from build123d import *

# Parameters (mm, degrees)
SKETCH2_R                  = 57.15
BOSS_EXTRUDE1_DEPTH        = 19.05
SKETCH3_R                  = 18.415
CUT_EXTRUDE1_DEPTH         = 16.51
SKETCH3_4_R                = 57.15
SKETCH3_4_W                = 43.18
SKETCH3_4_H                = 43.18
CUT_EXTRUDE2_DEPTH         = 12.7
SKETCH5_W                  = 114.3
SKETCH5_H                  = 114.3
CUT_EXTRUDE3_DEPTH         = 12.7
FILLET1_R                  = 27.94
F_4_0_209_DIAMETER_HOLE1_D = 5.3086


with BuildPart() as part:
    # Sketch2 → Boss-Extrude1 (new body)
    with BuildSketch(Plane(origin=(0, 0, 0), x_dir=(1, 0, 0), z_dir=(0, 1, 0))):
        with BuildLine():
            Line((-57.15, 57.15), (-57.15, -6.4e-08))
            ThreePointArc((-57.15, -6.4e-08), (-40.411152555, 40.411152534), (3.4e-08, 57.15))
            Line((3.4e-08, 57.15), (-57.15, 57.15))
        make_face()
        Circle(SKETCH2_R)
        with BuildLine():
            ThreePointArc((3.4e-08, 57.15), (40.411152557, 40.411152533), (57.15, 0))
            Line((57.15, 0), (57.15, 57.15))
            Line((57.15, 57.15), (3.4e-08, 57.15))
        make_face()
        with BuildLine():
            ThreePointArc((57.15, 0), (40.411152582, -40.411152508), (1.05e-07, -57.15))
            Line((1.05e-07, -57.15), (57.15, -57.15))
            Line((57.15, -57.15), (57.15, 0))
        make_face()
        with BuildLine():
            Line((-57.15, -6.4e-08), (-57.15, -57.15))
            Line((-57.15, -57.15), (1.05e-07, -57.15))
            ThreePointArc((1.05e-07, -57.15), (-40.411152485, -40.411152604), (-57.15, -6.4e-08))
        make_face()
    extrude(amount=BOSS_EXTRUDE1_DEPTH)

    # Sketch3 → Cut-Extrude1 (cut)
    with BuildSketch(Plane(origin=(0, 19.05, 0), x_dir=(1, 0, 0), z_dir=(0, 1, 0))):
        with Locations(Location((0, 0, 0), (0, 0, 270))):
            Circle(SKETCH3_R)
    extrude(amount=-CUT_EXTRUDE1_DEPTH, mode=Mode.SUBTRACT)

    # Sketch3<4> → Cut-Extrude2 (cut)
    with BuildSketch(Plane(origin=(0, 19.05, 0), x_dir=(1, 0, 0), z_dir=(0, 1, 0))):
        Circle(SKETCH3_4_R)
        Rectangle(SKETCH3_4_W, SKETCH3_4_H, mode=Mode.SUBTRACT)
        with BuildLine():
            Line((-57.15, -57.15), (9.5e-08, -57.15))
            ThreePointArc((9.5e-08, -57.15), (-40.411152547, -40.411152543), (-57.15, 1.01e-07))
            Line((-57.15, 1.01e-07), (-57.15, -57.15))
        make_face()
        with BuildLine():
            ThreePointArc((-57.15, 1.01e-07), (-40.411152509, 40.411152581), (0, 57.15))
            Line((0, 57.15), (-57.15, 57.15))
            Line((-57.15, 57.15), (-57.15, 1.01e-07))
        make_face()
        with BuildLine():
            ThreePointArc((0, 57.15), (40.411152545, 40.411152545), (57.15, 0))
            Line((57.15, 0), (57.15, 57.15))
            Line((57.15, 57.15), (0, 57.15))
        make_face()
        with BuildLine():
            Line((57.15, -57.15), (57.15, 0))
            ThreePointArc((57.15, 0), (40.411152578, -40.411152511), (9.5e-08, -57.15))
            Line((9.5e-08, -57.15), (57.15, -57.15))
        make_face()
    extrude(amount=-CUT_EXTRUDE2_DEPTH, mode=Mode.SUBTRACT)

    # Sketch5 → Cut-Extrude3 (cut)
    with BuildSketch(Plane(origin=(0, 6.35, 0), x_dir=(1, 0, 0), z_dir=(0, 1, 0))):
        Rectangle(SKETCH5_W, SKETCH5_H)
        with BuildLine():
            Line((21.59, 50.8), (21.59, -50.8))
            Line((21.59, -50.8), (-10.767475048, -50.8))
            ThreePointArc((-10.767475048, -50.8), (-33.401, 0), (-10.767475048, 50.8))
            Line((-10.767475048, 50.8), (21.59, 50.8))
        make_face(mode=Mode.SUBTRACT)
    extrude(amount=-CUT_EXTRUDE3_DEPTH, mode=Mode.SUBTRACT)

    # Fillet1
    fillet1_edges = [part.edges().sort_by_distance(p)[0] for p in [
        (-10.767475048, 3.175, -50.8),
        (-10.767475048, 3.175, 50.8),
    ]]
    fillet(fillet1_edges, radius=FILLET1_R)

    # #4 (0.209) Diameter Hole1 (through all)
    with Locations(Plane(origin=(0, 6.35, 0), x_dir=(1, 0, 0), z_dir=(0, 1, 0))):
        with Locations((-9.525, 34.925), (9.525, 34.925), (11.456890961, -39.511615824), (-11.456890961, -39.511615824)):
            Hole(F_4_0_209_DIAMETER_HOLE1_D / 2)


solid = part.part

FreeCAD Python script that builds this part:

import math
import FreeCAD as App
import Part
import Sketcher

V = App.Vector
Q = App.Units.Quantity


def edges_at(feature, points):
    """Names of the edges that pass closest to the given points."""
    edges = feature.Shape.Edges
    near = lambda p: min(range(len(edges)), key=lambda i: edges[i].distToShape(Part.Vertex(*p))[0])
    return sorted({f"Edge{near(p) + 1}" for p in points})

doc = App.newDocument("Part")
params = doc.addObject("Spreadsheet::Sheet", "Params")
for row, (alias, value) in enumerate([
    ("sketch1_width", "4.5 in"),
    ("pad1_length", "0.75 in"),
    ("sketch2_diameter", "1.45 in"),
    ("pocket1_length", "0.65 in"),
    ("sketch3_width", "4.5 in"),
    ("sketch3_width2", "1.7 in"),
    ("pocket2_length", "0.5 in"),
    ("sketch4_height", "4 in"),
    ("sketch4_radius", "2.69 in"),
    ("sketch4_width", "4.5 in"),
    ("pocket3_length", "0.5 in"),
    ("fillet_radius", "1.1 in"),
    ("sketch5_diameter", "0.209 in"),
    ("hole_diameter", "0.209 in"),
], start=1):
    params.set(f"A{row}", alias)
    params.set(f"B{row}", "=" + value)
    params.setAlias(f"B{row}", alias)

body = doc.addObject("PartDesign::Body", "Body")

# Sketch on XZ plane
sketch1 = doc.addObject("Sketcher::SketchObject", "Sketch")
body.addObject(sketch1)
sketch1.AttachmentSupport = (doc.XZ_Plane, [""])
sketch1.MapMode = "FlatFace"
sketch1.addGeometry([
    Part.LineSegment(V(-57, -57, 0), V(-57, 57, 0)),
    Part.LineSegment(V(-57, 57, 0), V(57, 57, 0)),
    Part.LineSegment(V(57, 57, 0), V(57, -57, 0)),
    Part.LineSegment(V(57, -57, 0), V(-57, -57, 0)),
], False)
sketch1.addConstraint([
    Sketcher.Constraint("Coincident", 0, 2, 1, 1),
    Sketcher.Constraint("Coincident", 1, 2, 2, 1),
    Sketcher.Constraint("Coincident", 2, 2, 3, 1),
    Sketcher.Constraint("Coincident", 3, 2, 0, 1),
    Sketcher.Constraint("Vertical", 0),
    Sketcher.Constraint("Horizontal", 1),
    Sketcher.Constraint("Vertical", 2),
    Sketcher.Constraint("Horizontal", 3),
    Sketcher.Constraint("Symmetric", 0, 2, 2, 2, -1, 1),
    Sketcher.Constraint("Equal", 3, 0),
    Sketcher.Constraint("DistanceX", 1, 1, 1, 2, Q("4.5 in")),
])
sketch1.setExpression("Constraints[10]", "Params.sketch1_width")
pad1 = doc.addObject("PartDesign::Pad", "Pad")
body.addObject(pad1)
pad1.Profile = sketch1
pad1.setExpression("Length", "Params.pad1_length")
pad1.Reversed = True

# Sketch on XZ plane
sketch2 = doc.addObject("Sketcher::SketchObject", "Sketch001")
body.addObject(sketch2)
sketch2.AttachmentSupport = (doc.XZ_Plane, [""])
sketch2.MapMode = "FlatFace"
sketch2.AttachmentOffset = App.Placement(V(0, 0, -0.75 * 25.4), App.Rotation())
sketch2.addGeometry(Part.Circle(V(0, 0, 0), V(0, 0, 1), 18), False)
sketch2.addConstraint([
    Sketcher.Constraint("Coincident", 0, 3, -1, 1),
    Sketcher.Constraint("Diameter", 0, Q("1.45 in")),
])
sketch2.setExpression("Constraints[1]", "Params.sketch2_diameter")
pocket1 = doc.addObject("PartDesign::Pocket", "Pocket")
body.addObject(pocket1)
pocket1.Profile = sketch2
pocket1.setExpression("Length", "Params.pocket1_length")
pocket1.Reversed = True

# Sketch on XZ plane
sketch3 = doc.addObject("Sketcher::SketchObject", "Sketch002")
body.addObject(sketch3)
sketch3.AttachmentSupport = (doc.XZ_Plane, [""])
sketch3.MapMode = "FlatFace"
sketch3.AttachmentOffset = App.Placement(V(0, 0, -0.75 * 25.4), App.Rotation())
sketch3.addGeometry([
    Part.LineSegment(V(-57, 57, 0), V(57, 57, 0)),  # 0
    Part.LineSegment(V(57, 57, 0), V(57, -57, 0)),  # 1
    Part.LineSegment(V(57, -57, 0), V(-57, -57, 0)),  # 2
    Part.LineSegment(V(-57, -57, 0), V(-57, 57, 0)),  # 3
    Part.LineSegment(V(22, 22, 0), V(-22, 22, 0)),  # 4
    Part.LineSegment(V(-22, 22, 0), V(-22, -22, 0)),  # 5
    Part.LineSegment(V(-22, -22, 0), V(22, -22, 0)),  # 6
    Part.LineSegment(V(22, -22, 0), V(22, 22, 0)),  # 7
], False)
sketch3.addConstraint([
    Sketcher.Constraint("Coincident", 0, 2, 1, 1),
    Sketcher.Constraint("Coincident", 1, 2, 2, 1),
    Sketcher.Constraint("Coincident", 2, 2, 3, 1),
    Sketcher.Constraint("Coincident", 3, 2, 0, 1),
    Sketcher.Constraint("Coincident", 4, 2, 5, 1),
    Sketcher.Constraint("Coincident", 5, 2, 6, 1),
    Sketcher.Constraint("Coincident", 6, 2, 7, 1),
    Sketcher.Constraint("Coincident", 7, 2, 4, 1),
    Sketcher.Constraint("Horizontal", 0),
    Sketcher.Constraint("Vertical", 1),
    Sketcher.Constraint("Horizontal", 2),
    Sketcher.Constraint("Vertical", 3),
    Sketcher.Constraint("Horizontal", 4),
    Sketcher.Constraint("Vertical", 5),
    Sketcher.Constraint("Horizontal", 6),
    Sketcher.Constraint("Vertical", 7),
    Sketcher.Constraint("Symmetric", 0, 2, 2, 2, -1, 1),
    Sketcher.Constraint("Symmetric", 4, 2, 6, 2, -1, 1),
    Sketcher.Constraint("Equal", 2, 1),
    Sketcher.Constraint("Equal", 6, 5),
    Sketcher.Constraint("DistanceX", 0, 1, 0, 2, Q("4.5 in")),
    Sketcher.Constraint("DistanceX", 4, 2, 4, 1, Q("1.7 in")),
])
sketch3.setExpression("Constraints[20]", "Params.sketch3_width")
sketch3.setExpression("Constraints[21]", "Params.sketch3_width2")
pocket2 = doc.addObject("PartDesign::Pocket", "Pocket001")
body.addObject(pocket2)
pocket2.Profile = sketch3
pocket2.setExpression("Length", "Params.pocket2_length")
pocket2.Reversed = True

# Sketch on XZ plane
sketch4 = doc.addObject("Sketcher::SketchObject", "Sketch003")
body.addObject(sketch4)
sketch4.AttachmentSupport = (doc.XZ_Plane, [""])
sketch4.MapMode = "FlatFace"
sketch4.AttachmentOffset = App.Placement(V(0, 0, -0.25 * 25.4), App.Rotation())
sketch4.addGeometry([
    Part.LineSegment(V(-57, -57, 0), V(-57, 57, 0)),  # 0
    Part.LineSegment(V(-57, 57, 0), V(57, 57, 0)),  # 1
    Part.LineSegment(V(57, 57, 0), V(57, -57, 0)),  # 2
    Part.LineSegment(V(57, -57, 0), V(-57, -57, 0)),  # 3
    Part.LineSegment(V(-11, -51, 0), V(22, -51, 0)),  # 4
    Part.LineSegment(V(22, -51, 0), V(22, 51, 0)),  # 5
    Part.LineSegment(V(22, 51, 0), V(-11, 51, 0)),  # 6
    Part.ArcOfCircle(Part.Circle(V(35, 0, 0), V(0, 0, 1), 68), math.radians(132), math.radians(228)),  # 7
], False)
sketch4.addConstraint([
    Sketcher.Constraint("Coincident", 0, 2, 1, 1),
    Sketcher.Constraint("Coincident", 1, 2, 2, 1),
    Sketcher.Constraint("Coincident", 2, 2, 3, 1),
    Sketcher.Constraint("Coincident", 3, 2, 0, 1),
    Sketcher.Constraint("Coincident", 4, 2, 5, 1),
    Sketcher.Constraint("Coincident", 5, 2, 6, 1),
    Sketcher.Constraint("Coincident", 6, 2, 7, 1),
    Sketcher.Constraint("Coincident", 7, 2, 4, 1),
    Sketcher.Constraint("Vertical", 0),
    Sketcher.Constraint("Horizontal", 1),
    Sketcher.Constraint("Vertical", 2),
    Sketcher.Constraint("Horizontal", 3),
    Sketcher.Constraint("Horizontal", 4),
    Sketcher.Constraint("Vertical", 5),
    Sketcher.Constraint("Horizontal", 6),
    Sketcher.Constraint("Symmetric", 0, 2, 2, 2, -1, 1),
    Sketcher.Constraint("Symmetric", 6, 2, 7, 2, -1),
    Sketcher.Constraint("Equal", 3, 0),
    Sketcher.Constraint("DistanceY", 5, 1, 5, 2, Q("4 in")),
    Sketcher.Constraint("Radius", 7, Q("2.69 in")),
    Sketcher.Constraint("DistanceX", 1, 1, 1, 2, Q("4.5 in")),
    Sketcher.Constraint("DistanceX", 4, 2, 2, 2, Q("1.4 in")),
    Sketcher.Constraint("DistanceX", -1, 1, 7, 3, Q("1.375 in")),
])
sketch4.setExpression("Constraints[18]", "Params.sketch4_height")
sketch4.setExpression("Constraints[19]", "Params.sketch4_radius")
sketch4.setExpression("Constraints[20]", "Params.sketch4_width")
pocket3 = doc.addObject("PartDesign::Pocket", "Pocket002")
body.addObject(pocket3)
pocket3.Profile = sketch4
pocket3.setExpression("Length", "Params.pocket3_length")
pocket3.Reversed = True
doc.recompute()

fillet = doc.addObject("PartDesign::Fillet", "Fillet")
body.addObject(fillet)
fillet.Base = (pocket3, edges_at(pocket3, [(-10.767, 3.175, -50.8), (-10.767, 3.175, 50.8)]))
fillet.setExpression("Radius", "Params.fillet_radius")

# Sketch on XZ plane
sketch5 = doc.addObject("Sketcher::SketchObject", "Sketch004")
body.addObject(sketch5)
sketch5.AttachmentSupport = (doc.XZ_Plane, [""])
sketch5.MapMode = "FlatFace"
sketch5.AttachmentOffset = App.Placement(V(0, 0, -0.25 * 25.4), App.Rotation())
sketch5.addGeometry([
    Part.Circle(V(-9.5, -34.9, 0), V(0, 0, 1), 2.7),
    Part.Circle(V(9.5, -34.9, 0), V(0, 0, 1), 2.7),
    Part.Circle(V(11.5, 39.5, 0), V(0, 0, 1), 2.7),
    Part.Circle(V(-11.5, 39.5, 0), V(0, 0, 1), 2.7),
], False)
sketch5.addConstraint([
    Sketcher.Constraint("Equal", 0, 1),
    Sketcher.Constraint("Equal", 1, 2),
    Sketcher.Constraint("Equal", 2, 3),
    Sketcher.Constraint("Symmetric", 0, 3, 1, 3, -2),
    Sketcher.Constraint("Symmetric", 2, 3, 3, 3, -2),
    Sketcher.Constraint("Diameter", 0, Q("0.209 in")),
    Sketcher.Constraint("DistanceX", 0, 3, 1, 3, Q("0.75 in")),
    Sketcher.Constraint("DistanceY", 0, 3, -1, 1, Q("1.375 in")),
    Sketcher.Constraint("DistanceX", -1, 1, 2, 3, Q("11.456891 mm")),
    Sketcher.Constraint("DistanceY", -1, 1, 2, 3, Q("39.511616 mm")),
])
sketch5.setExpression("Constraints[5]", "Params.sketch5_diameter")
doc.recompute()
hole = doc.addObject("PartDesign::Hole", "Hole")
body.addObject(hole)
hole.Profile = sketch5
hole.ThreadType = "None"
hole.setExpression("Diameter", "Params.hole_diameter")
hole.DepthType = "ThroughAll"
hole.Reversed = True

doc.recompute()
